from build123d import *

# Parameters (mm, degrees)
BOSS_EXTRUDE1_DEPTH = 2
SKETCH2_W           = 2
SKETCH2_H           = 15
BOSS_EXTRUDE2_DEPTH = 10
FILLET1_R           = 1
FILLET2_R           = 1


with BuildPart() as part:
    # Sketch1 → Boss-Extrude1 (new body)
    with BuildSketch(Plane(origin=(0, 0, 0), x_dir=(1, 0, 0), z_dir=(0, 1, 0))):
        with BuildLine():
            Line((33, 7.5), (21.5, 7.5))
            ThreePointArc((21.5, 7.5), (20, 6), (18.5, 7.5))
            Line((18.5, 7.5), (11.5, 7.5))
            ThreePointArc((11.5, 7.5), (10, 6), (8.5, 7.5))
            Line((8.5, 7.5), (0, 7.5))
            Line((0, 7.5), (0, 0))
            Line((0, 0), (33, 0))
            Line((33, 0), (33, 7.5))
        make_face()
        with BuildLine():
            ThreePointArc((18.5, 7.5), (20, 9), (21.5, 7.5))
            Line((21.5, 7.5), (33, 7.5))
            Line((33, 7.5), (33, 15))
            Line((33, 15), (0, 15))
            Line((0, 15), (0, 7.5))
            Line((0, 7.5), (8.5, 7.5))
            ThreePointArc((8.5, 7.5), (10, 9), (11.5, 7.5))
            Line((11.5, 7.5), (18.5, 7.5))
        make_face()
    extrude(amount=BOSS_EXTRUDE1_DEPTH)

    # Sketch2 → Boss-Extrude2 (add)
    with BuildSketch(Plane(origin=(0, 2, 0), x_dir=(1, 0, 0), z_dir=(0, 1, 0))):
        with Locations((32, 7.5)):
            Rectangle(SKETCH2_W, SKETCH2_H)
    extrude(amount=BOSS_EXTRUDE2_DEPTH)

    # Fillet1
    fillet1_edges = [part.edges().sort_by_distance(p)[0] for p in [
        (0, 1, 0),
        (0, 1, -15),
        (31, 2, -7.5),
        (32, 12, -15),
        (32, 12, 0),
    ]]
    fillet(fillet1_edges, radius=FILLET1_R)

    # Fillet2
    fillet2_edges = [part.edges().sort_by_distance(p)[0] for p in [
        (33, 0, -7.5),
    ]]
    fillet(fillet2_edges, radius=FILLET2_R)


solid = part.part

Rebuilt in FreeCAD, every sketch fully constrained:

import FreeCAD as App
import Part
import Sketcher

V = App.Vector
Q = App.Units.Quantity


def edges_at(feature, points):
    """Names of the edges that pass closest to the given points."""
    edges = feature.Shape.Edges
    near = lambda p: min(range(len(edges)), key=lambda i: edges[i].distToShape(Part.Vertex(*p))[0])
    return sorted({f"Edge{near(p) + 1}" for p in points})

doc = App.newDocument("Part")
params = doc.addObject("Spreadsheet::Sheet", "Params")
for row, (alias, value) in enumerate([
    ("sketch1_diameter", "3 mm"),
    ("sketch1_width", "33 mm"),
    ("sketch1_height", "15 mm"),
    ("pad1_length", "2 mm"),
    ("sketch2_width", "2 mm"),
    ("sketch2_height", "15 mm"),
    ("pad2_length", "10 mm"),
    ("fillet_radius", "1 mm"),
    ("fillet2_radius", "1 mm"),
], start=1):
    params.set(f"A{row}", alias)
    params.set(f"B{row}", "=" + value)
    params.setAlias(f"B{row}", alias)

body = doc.addObject("PartDesign::Body", "Body")

# Sketch on XZ plane
sketch1 = doc.addObject("Sketcher::SketchObject", "Sketch")
body.addObject(sketch1)
sketch1.AttachmentSupport = (doc.XZ_Plane, [""])
sketch1.MapMode = "FlatFace"
sketch1.addGeometry([
    Part.LineSegment(V(0, 0, 0), V(33, 0, 0)),  # 0
    Part.LineSegment(V(33, 0, 0), V(33, -15, 0)),  # 1
    Part.LineSegment(V(33, -15, 0), V(0, -15, 0)),  # 2
    Part.LineSegment(V(0, -15, 0), V(0, 0, 0)),  # 3
    Part.Circle(V(20, -7.5, 0), V(0, 0, 1), 1.5),  # 4
    Part.Circle(V(10, -7.5, 0), V(0, 0, 1), 1.5),  # 5
], False)
sketch1.addConstraint([
    Sketcher.Constraint("Coincident", 0, 2, 1, 1),
    Sketcher.Constraint("Coincident", 1, 2, 2, 1),
    Sketcher.Constraint("Coincident", 2, 2, 3, 1),
    Sketcher.Constraint("Coincident", 3, 2, 0, 1),
    Sketcher.Constraint("Horizontal", 0),
    Sketcher.Constraint("Vertical", 1),
    Sketcher.Constraint("Horizontal", 2),
    Sketcher.Constraint("Vertical", 3),
    Sketcher.Constraint("Coincident", 3, 2, -1, 1),
    Sketcher.Constraint("Equal", 4, 5),
    Sketcher.Constraint("Horizontal", 4, 3, 5, 3),
    Sketcher.Constraint("Diameter", 4, Q("3 mm")),
    Sketcher.Constraint("DistanceX", 0, 1, 0, 2, Q("33 mm")),
    Sketcher.Constraint("DistanceY", 1, 2, 1, 1, Q("15 mm")),
    Sketcher.Constraint("DistanceX", -1, 1, 4, 3, Q("20 mm")),
    Sketcher.Constraint("DistanceX", -1, 1, 5, 3, Q("10 mm")),
    Sketcher.Constraint("DistanceY", 4, 3, -1, 1, Q("7.5 mm")),
])
sketch1.setExpression("Constraints[11]", "Params.sketch1_diameter")
sketch1.setExpression("Constraints[12]", "Params.sketch1_width")
sketch1.setExpression("Constraints[13]", "Params.sketch1_height")
pad1 = doc.addObject("PartDesign::Pad", "Pad")
body.addObject(pad1)
pad1.Profile = sketch1
pad1.setExpression("Length", "Params.pad1_length")
pad1.Reversed = True

# Sketch on XZ plane
sketch2 = doc.addObject("Sketcher::SketchObject", "Sketch001")
body.addObject(sketch2)
sketch2.AttachmentSupport = (doc.XZ_Plane, [""])
sketch2.MapMode = "FlatFace"
sketch2.AttachmentOffset = App.Placement(V(0, 0, -2), App.Rotation())
sketch2.addGeometry([
    Part.LineSegment(V(31, -15, 0), V(31, 0, 0)),
    Part.LineSegment(V(31, 0, 0), V(33, 0, 0)),
    Part.LineSegment(V(33, 0, 0), V(33, -15, 0)),
    Part.LineSegment(V(33, -15, 0), V(31, -15, 0)),
], False)
sketch2.addConstraint([
    Sketcher.Constraint("Coincident", 0, 2, 1, 1),
    Sketcher.Constraint("Coincident", 1, 2, 2, 1),
    Sketcher.Constraint("Coincident", 2, 2, 3, 1),
    Sketcher.Constraint("Coincident", 3, 2, 0, 1),
    Sketcher.Constraint("Vertical", 0),
    Sketcher.Constraint("Horizontal", 1),
    Sketcher.Constraint("Vertical", 2),
    Sketcher.Constraint("Horizontal", 3),
    Sketcher.Constraint("PointOnObject", 0, 2, -1),
    Sketcher.Constraint("DistanceX", 1, 1, 1, 2, Q("2 mm")),
    Sketcher.Constraint("DistanceY", 0, 1, 0, 2, Q("15 mm")),
    Sketcher.Constraint("DistanceX", -1, 1, 0, 2, Q("31 mm")),
])
sketch2.setExpression("Constraints[9]", "Params.sketch2_width")
sketch2.setExpression("Constraints[10]", "Params.sketch2_height")
pad2 = doc.addObject("PartDesign::Pad", "Pad001")
body.addObject(pad2)
pad2.Profile = sketch2
pad2.setExpression("Length", "Params.pad2_length")
pad2.Reversed = True
doc.recompute()

fillet = doc.addObject("PartDesign::Fillet", "Fillet")
body.addObject(fillet)
fillet.Base = (pad2, edges_at(pad2, [
    (0, 1, 0),
    (0, 1, -15),
    (31, 2, -7.5),
    (32, 12, -15),
    (32, 12, 0),
]))
fillet.setExpression("Radius", "Params.fillet_radius")
doc.recompute()

fillet2 = doc.addObject("PartDesign::Fillet", "Fillet001")
body.addObject(fillet2)
fillet2.Base = (fillet, edges_at(fillet, [(33, 0, -7.5)]))
fillet2.setExpression("Radius", "Params.fillet2_radius")

doc.recompute()
